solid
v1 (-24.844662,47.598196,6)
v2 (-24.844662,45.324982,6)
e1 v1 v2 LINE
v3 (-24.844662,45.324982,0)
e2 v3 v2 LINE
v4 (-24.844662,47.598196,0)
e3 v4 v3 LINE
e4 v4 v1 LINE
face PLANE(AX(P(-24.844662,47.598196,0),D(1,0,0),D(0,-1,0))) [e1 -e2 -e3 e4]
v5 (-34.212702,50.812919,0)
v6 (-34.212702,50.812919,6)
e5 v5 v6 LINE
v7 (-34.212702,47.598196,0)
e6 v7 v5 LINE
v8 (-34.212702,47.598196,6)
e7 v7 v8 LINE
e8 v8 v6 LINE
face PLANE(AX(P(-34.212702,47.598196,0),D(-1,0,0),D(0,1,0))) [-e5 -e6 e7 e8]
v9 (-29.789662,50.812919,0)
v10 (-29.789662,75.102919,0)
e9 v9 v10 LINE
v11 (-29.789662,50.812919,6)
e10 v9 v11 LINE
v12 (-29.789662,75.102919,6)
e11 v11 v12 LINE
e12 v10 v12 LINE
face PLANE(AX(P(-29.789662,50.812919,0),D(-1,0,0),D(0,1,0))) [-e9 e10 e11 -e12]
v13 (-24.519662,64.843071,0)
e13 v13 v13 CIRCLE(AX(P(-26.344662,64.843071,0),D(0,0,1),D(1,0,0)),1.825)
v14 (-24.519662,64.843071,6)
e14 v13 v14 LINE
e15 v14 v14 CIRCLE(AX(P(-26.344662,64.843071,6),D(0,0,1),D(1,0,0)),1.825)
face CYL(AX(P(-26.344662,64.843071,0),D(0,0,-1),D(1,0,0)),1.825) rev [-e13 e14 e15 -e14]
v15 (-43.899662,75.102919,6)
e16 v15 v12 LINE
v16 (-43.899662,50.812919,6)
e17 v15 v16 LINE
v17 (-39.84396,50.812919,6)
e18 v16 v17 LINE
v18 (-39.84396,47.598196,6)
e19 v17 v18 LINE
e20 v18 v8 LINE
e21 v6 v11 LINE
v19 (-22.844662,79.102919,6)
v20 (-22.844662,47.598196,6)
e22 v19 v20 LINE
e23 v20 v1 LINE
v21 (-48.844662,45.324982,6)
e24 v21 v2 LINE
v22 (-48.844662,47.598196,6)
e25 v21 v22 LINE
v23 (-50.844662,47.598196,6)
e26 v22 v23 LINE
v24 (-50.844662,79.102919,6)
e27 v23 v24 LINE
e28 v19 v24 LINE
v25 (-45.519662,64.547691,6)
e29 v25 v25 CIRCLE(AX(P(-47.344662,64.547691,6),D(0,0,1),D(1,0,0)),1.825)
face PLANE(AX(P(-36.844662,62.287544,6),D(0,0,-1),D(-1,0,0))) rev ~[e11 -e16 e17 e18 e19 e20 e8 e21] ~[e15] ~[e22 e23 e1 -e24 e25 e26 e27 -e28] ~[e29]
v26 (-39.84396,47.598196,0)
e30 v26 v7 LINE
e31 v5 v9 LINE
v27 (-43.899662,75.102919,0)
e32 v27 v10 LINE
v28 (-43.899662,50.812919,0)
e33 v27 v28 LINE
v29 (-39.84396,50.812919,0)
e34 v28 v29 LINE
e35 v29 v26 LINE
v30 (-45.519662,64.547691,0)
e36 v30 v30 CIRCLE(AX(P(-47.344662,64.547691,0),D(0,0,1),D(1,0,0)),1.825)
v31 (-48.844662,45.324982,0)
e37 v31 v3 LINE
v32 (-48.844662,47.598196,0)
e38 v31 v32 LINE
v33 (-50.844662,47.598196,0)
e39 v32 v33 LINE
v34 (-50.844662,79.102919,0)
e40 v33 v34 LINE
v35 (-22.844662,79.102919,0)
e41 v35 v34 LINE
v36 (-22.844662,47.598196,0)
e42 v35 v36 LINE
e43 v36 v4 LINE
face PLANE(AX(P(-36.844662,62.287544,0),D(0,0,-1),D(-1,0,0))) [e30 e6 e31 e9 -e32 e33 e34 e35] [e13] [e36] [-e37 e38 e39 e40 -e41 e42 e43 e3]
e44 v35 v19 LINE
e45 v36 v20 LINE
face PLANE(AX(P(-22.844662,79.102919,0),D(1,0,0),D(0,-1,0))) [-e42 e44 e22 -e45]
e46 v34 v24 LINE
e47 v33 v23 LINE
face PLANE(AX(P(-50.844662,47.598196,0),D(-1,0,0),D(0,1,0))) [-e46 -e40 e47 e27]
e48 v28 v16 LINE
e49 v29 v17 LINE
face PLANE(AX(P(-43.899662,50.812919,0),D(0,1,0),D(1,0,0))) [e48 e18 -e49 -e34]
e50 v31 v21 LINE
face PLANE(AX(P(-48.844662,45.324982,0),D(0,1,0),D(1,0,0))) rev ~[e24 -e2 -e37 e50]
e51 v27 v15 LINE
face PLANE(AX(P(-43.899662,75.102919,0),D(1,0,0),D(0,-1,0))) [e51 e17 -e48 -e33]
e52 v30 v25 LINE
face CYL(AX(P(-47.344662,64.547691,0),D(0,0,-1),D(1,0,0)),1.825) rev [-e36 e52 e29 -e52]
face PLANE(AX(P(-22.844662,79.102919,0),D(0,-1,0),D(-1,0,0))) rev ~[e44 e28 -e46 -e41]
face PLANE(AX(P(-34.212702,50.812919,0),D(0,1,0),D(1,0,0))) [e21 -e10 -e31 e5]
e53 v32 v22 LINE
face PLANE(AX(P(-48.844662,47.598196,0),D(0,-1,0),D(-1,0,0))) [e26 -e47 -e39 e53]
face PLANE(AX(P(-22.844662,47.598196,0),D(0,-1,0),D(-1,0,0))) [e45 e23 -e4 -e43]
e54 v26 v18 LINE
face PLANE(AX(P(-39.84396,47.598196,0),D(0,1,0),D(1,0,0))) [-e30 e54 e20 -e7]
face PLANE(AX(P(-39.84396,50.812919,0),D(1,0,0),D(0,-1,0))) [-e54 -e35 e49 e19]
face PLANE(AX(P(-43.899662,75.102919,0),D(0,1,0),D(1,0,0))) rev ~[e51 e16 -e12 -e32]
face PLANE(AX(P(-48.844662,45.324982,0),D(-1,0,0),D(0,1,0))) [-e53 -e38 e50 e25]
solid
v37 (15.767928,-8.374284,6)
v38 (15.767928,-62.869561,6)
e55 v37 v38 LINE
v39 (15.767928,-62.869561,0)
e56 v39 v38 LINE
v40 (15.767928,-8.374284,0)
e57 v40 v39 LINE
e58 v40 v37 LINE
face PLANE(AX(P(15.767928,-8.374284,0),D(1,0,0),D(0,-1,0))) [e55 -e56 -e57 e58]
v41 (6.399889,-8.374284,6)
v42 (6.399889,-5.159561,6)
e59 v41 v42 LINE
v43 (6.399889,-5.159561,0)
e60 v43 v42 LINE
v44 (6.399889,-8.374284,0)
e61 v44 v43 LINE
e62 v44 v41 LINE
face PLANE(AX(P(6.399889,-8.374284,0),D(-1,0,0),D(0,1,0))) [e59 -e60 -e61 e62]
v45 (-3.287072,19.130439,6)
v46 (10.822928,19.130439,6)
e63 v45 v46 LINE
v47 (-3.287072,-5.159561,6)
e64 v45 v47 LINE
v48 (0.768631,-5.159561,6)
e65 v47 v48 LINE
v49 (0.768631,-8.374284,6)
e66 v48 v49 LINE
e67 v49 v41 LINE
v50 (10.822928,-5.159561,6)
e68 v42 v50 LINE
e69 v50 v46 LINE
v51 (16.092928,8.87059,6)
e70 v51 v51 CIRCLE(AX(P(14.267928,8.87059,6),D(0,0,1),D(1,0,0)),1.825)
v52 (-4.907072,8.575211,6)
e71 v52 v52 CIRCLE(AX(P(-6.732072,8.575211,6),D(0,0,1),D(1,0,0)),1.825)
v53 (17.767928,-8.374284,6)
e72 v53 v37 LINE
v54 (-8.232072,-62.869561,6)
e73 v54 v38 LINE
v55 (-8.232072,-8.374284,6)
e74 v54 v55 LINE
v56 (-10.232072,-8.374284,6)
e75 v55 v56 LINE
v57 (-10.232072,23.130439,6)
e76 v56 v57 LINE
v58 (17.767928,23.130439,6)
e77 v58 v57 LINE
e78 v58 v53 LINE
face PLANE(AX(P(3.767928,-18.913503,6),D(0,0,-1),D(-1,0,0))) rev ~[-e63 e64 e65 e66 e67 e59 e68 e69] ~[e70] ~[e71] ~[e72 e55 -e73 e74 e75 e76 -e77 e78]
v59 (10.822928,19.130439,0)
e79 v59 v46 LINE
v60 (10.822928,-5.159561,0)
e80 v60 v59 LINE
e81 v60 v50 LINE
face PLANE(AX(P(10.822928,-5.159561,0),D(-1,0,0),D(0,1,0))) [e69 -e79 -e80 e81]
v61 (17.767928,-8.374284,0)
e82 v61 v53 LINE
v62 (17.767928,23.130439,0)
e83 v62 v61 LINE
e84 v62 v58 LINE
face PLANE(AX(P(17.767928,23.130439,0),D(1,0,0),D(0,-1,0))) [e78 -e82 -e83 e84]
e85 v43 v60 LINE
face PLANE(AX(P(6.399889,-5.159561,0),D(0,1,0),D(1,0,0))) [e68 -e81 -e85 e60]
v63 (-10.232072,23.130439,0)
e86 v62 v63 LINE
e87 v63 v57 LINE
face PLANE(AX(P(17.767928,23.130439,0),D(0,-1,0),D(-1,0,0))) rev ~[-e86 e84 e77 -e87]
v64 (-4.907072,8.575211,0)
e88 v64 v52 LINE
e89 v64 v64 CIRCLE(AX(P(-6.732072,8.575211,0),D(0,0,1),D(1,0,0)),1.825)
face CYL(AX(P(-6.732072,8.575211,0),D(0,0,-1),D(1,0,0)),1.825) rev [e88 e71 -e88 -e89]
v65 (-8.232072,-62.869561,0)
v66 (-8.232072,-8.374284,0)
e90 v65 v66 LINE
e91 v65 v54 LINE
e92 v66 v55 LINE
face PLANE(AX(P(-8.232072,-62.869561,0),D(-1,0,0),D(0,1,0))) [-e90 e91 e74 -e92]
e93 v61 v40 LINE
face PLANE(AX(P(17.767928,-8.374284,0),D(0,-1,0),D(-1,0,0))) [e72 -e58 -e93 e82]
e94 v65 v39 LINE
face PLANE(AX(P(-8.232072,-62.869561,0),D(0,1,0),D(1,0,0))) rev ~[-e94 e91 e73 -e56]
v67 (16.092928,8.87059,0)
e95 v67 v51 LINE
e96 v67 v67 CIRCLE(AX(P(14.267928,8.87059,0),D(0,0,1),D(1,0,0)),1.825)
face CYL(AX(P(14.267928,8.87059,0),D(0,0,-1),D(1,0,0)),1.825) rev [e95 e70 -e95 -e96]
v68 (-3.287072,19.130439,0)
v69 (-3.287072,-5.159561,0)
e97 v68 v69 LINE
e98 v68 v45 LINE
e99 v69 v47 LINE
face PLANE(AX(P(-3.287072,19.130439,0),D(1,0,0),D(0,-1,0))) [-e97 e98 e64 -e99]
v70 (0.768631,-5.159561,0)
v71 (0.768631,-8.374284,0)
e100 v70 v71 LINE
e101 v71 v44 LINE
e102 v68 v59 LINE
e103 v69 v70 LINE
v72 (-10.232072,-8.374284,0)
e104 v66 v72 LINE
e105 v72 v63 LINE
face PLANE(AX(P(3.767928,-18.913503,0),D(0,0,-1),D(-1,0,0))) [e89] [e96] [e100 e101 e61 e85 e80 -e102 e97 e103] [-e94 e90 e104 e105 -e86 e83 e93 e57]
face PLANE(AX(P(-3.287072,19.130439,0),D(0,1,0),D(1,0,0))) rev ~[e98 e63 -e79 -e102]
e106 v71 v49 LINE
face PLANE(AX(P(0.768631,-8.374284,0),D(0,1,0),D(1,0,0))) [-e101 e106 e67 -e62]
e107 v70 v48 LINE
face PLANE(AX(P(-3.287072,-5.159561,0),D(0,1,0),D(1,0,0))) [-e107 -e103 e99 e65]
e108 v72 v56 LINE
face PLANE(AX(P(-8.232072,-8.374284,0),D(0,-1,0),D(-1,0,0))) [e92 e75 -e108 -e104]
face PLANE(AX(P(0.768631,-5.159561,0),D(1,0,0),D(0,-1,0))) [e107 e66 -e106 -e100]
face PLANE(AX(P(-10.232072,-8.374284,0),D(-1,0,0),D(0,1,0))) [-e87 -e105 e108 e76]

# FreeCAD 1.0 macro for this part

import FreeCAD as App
import Part
import Sketcher

V = App.Vector

doc = App.newDocument("Part")
body = doc.addObject("PartDesign::Body", "Body")

sketch1 = body.newObject("Sketcher::SketchObject", "Sketch")
sketch1.AttachmentSupport = (doc.getObject("XY_Plane"), [""])
sketch1.MapMode = "FlatFace"
sketch1.addGeometry([
    Part.LineSegment(V(-8.232072, -62.869561, 0), V(15.767928, -62.869561, 0)),
    Part.LineSegment(V(15.767928, -62.869561, 0), V(15.767928, -8.374284, 0)),
    Part.LineSegment(V(15.767928, -8.374284, 0), V(17.767928, -8.374284, 0)),
    Part.LineSegment(V(17.767928, -8.374284, 0), V(17.767928, 23.130439, 0)),
    Part.LineSegment(V(17.767928, 23.130439, 0), V(-10.232072, 23.130439, 0)),
    Part.LineSegment(V(-10.232072, 23.130439, 0), V(-10.232072, -8.374284, 0)),
    Part.LineSegment(V(-10.232072, -8.374284, 0), V(-8.232072, -8.374284, 0)),
    Part.LineSegment(V(-8.232072, -8.374284, 0), V(-8.232072, -62.869561, 0)),
    Part.LineSegment(V(10.822928, 19.130439, 0), V(10.822928, -5.159561, 0)),
    Part.LineSegment(V(10.822928, -5.159561, 0), V(6.399889, -5.159561, 0)),
    Part.LineSegment(V(6.399889, -5.159561, 0), V(6.399889, -8.374284, 0)),
    Part.LineSegment(V(6.399889, -8.374284, 0), V(0.768631, -8.374284, 0)),
    Part.LineSegment(V(0.768631, -8.374284, 0), V(0.768631, -5.159561, 0)),
    Part.LineSegment(V(0.768631, -5.159561, 0), V(-3.287072, -5.159561, 0)),
    Part.LineSegment(V(-3.287072, -5.159561, 0), V(-3.287072, 19.130439, 0)),
    Part.LineSegment(V(-3.287072, 19.130439, 0), V(10.822928, 19.130439, 0)),
    Part.Circle(V(14.267928, 8.87059, 0), V(0, 0, 1), 1.825),
    Part.Circle(V(-6.732072, 8.575211, 0), V(0, 0, 1), 1.825),
], False)
sketch1.addConstraint([
    Sketcher.Constraint("Coincident", 0, 2, 1, 1),
    Sketcher.Constraint("Coincident", 1, 2, 2, 1),
    Sketcher.Constraint("Coincident", 2, 2, 3, 1),
    Sketcher.Constraint("Coincident", 3, 2, 4, 1),
    Sketcher.Constraint("Coincident", 4, 2, 5, 1),
    Sketcher.Constraint("Coincident", 5, 2, 6, 1),
    Sketcher.Constraint("Coincident", 6, 2, 7, 1),
    Sketcher.Constraint("Coincident", 7, 2, 0, 1),
    Sketcher.Constraint("Coincident", 8, 2, 9, 1),
    Sketcher.Constraint("Coincident", 9, 2, 10, 1),
    Sketcher.Constraint("Coincident", 10, 2, 11, 1),
    Sketcher.Constraint("Coincident", 11, 2, 12, 1),
    Sketcher.Constraint("Coincident", 12, 2, 13, 1),
    Sketcher.Constraint("Coincident", 13, 2, 14, 1),
    Sketcher.Constraint("Coincident", 14, 2, 15, 1),
    Sketcher.Constraint("Coincident", 15, 2, 8, 1),
    Sketcher.Constraint("Horizontal", 0),
    Sketcher.Constraint("Vertical", 1),
    Sketcher.Constraint("Horizontal", 2),
    Sketcher.Constraint("Vertical", 3),
    Sketcher.Constraint("Horizontal", 4),
    Sketcher.Constraint("Vertical", 5),
    Sketcher.Constraint("Horizontal", 6),
    Sketcher.Constraint("Vertical", 7),
    Sketcher.Constraint("Vertical", 8),
    Sketcher.Constraint("Horizontal", 9),
    Sketcher.Constraint("Vertical", 10),
    Sketcher.Constraint("Horizontal", 11),
    Sketcher.Constraint("Vertical", 12),
    Sketcher.Constraint("Horizontal", 13),
    Sketcher.Constraint("Vertical", 14),
    Sketcher.Constraint("Horizontal", 15),
    Sketcher.Constraint("Equal", 16, 17),
    Sketcher.Constraint("Horizontal", 2, 2, 5, 2),
    Sketcher.Constraint("Horizontal", 6, 2, 10, 2),
    Sketcher.Constraint("Horizontal", 9, 2, 12, 2),
    Sketcher.Constraint("Equal", 2, 6),
    Sketcher.Constraint("Diameter", 16, 3.65),
    Sketcher.Constraint("DistanceX", 0, 1, 0, 2, 24.0),
    Sketcher.Constraint("DistanceX", 2, 1, 2, 2, 2.0),
    Sketcher.Constraint("DistanceX", 17, 3, 16, 3, 21.0),
    Sketcher.Constraint("DistanceY", 0, 2, 3, 2, 86.0),
    Sketcher.Constraint("DistanceY", 14, 2, 4, 2, 4.0),
    Sketcher.Constraint("DistanceX", 15, 1, 15, 2, 14.11),
    Sketcher.Constraint("DistanceY", 8, 2, 8, 1, 24.29),
    Sketcher.Constraint("DistanceX", 16, 3, 0, 2, 1.5),
    Sketcher.Constraint("DistanceX", 8, 2, 1, 2, 4.945),
    Sketcher.Constraint("DistanceX", 9, 2, 9, 1, 4.42304),
    Sketcher.Constraint("DistanceX", 11, 2, 11, 1, 5.631258),
    Sketcher.Constraint("DistanceY", 1, 1, 1, 2, 54.495277),
    Sketcher.Constraint("DistanceX", -1, 1, 16, 3, 14.267928),
    Sketcher.Constraint("DistanceY", -1, 1, 16, 3, 8.87059),
    Sketcher.Constraint("DistanceY", -1, 1, 17, 3, 8.575211),
    Sketcher.Constraint("DistanceY", 0, 2, -1, 1, 62.869561),
])
pad1 = body.newObject("PartDesign::Pad", "Pad")
pad1.Profile = sketch1
pad1.Length = 6
body2 = doc.addObject("PartDesign::Body", "Body001")

sketch2 = body2.newObject("Sketcher::SketchObject", "Sketch001")
sketch2.AttachmentSupport = (doc.getObject("XY_Plane001"), [""])
sketch2.MapMode = "FlatFace"
sketch2.addGeometry([
    Part.LineSegment(V(-48.844662, 45.324982, 0), V(-24.844662, 45.324982, 0)),
    Part.LineSegment(V(-24.844662, 45.324982, 0), V(-24.844662, 47.598196, 0)),
    Part.LineSegment(V(-24.844662, 47.598196, 0), V(-22.844662, 47.598196, 0)),
    Part.LineSegment(V(-22.844662, 47.598196, 0), V(-22.844662, 79.102919, 0)),
    Part.LineSegment(V(-22.844662, 79.102919, 0), V(-50.844662, 79.102919, 0)),
    Part.LineSegment(V(-50.844662, 79.102919, 0), V(-50.844662, 47.598196, 0)),
    Part.LineSegment(V(-50.844662, 47.598196, 0), V(-48.844662, 47.598196, 0)),
    Part.LineSegment(V(-48.844662, 47.598196, 0), V(-48.844662, 45.324982, 0)),
    Part.LineSegment(V(-29.789662, 75.102919, 0), V(-29.789662, 50.812919, 0)),
    Part.LineSegment(V(-29.789662, 50.812919, 0), V(-34.212702, 50.812919, 0)),
    Part.LineSegment(V(-34.212702, 50.812919, 0), V(-34.212702, 47.598196, 0)),
    Part.LineSegment(V(-34.212702, 47.598196, 0), V(-39.84396, 47.598196, 0)),
    Part.LineSegment(V(-39.84396, 47.598196, 0), V(-39.84396, 50.812919, 0)),
    Part.LineSegment(V(-39.84396, 50.812919, 0), V(-43.899662, 50.812919, 0)),
    Part.LineSegment(V(-43.899662, 50.812919, 0), V(-43.899662, 75.102919, 0)),
    Part.LineSegment(V(-43.899662, 75.102919, 0), V(-29.789662, 75.102919, 0)),
    Part.Circle(V(-26.344662, 64.843071, 0), V(0, 0, 1), 1.825),
    Part.Circle(V(-47.344662, 64.547691, 0), V(0, 0, 1), 1.825),
], False)
sketch2.addConstraint([
    Sketcher.Constraint("Coincident", 0, 2, 1, 1),
    Sketcher.Constraint("Coincident", 1, 2, 2, 1),
    Sketcher.Constraint("Coincident", 2, 2, 3, 1),
    Sketcher.Constraint("Coincident", 3, 2, 4, 1),
    Sketcher.Constraint("Coincident", 4, 2, 5, 1),
    Sketcher.Constraint("Coincident", 5, 2, 6, 1),
    Sketcher.Constraint("Coincident", 6, 2, 7, 1),
    Sketcher.Constraint("Coincident", 7, 2, 0, 1),
    Sketcher.Constraint("Coincident", 8, 2, 9, 1),
    Sketcher.Constraint("Coincident", 9, 2, 10, 1),
    Sketcher.Constraint("Coincident", 10, 2, 11, 1),
    Sketcher.Constraint("Coincident", 11, 2, 12, 1),
    Sketcher.Constraint("Coincident", 12, 2, 13, 1),
    Sketcher.Constraint("Coincident", 13, 2, 14, 1),
    Sketcher.Constraint("Coincident", 14, 2, 15, 1),
    Sketcher.Constraint("Coincident", 15, 2, 8, 1),
    Sketcher.Constraint("Horizontal", 0),
    Sketcher.Constraint("Vertical", 1),
    Sketcher.Constraint("Horizontal", 2),
    Sketcher.Constraint("Vertical", 3),
    Sketcher.Constraint("Horizontal", 4),
    Sketcher.Constraint("Vertical", 5),
    Sketcher.Constraint("Horizontal", 6),
    Sketcher.Constraint("Vertical", 7),
    Sketcher.Constraint("Vertical", 8),
    Sketcher.Constraint("Horizontal", 9),
    Sketcher.Constraint("Vertical", 10),
    Sketcher.Constraint("Horizontal", 11),
    Sketcher.Constraint("Vertical", 12),
    Sketcher.Constraint("Horizontal", 13),
    Sketcher.Constraint("Vertical", 14),
    Sketcher.Constraint("Horizontal", 15),
    Sketcher.Constraint("Equal", 16, 17),
    Sketcher.Constraint("Horizontal", 2, 2, 5, 2),
    Sketcher.Constraint("Horizontal", 6, 2, 10, 2),
    Sketcher.Constraint("Horizontal", 9, 2, 12, 2),
    Sketcher.Constraint("Equal", 2, 6),
    Sketcher.Constraint("Diameter", 16, 3.65),
    Sketcher.Constraint("DistanceX", 0, 1, 0, 2, 24.0),
    Sketcher.Constraint("DistanceX", 2, 1, 2, 2, 2.0),
    Sketcher.Constraint("DistanceX", 17, 3, 16, 3, 21.0),
    Sketcher.Constraint("DistanceY", 14, 2, 4, 2, 4.0),
    Sketcher.Constraint("DistanceX", 15, 1, 15, 2, 14.11),
    Sketcher.Constraint("DistanceY", 8, 2, 8, 1, 24.29),
    Sketcher.Constraint("DistanceX", 16, 3, 0, 2, 1.5),
    Sketcher.Constraint("DistanceX", 8, 2, 1, 2, 4.945),
    Sketcher.Constraint("DistanceX", 9, 2, 9, 1, 4.42304),
    Sketcher.Constraint("DistanceX", 11, 2, 11, 1, 5.631258),
    Sketcher.Constraint("DistanceX", 9, 2, -1, 1, 34.212702),
    Sketcher.Constraint("DistanceY", 1, 1, 1, 2, 2.273214),
    Sketcher.Constraint("DistanceY", 3, 1, 3, 2, 31.504723),
    Sketcher.Constraint("DistanceY", -1, 1, 16, 3, 64.843071),
    Sketcher.Constraint("DistanceY", -1, 1, 17, 3, 64.547691),
    Sketcher.Constraint("DistanceY", -1, 1, 3, 2, 79.102919),
])
pad2 = body2.newObject("PartDesign::Pad", "Pad001")
pad2.Profile = sketch2
pad2.Length = 6

doc.recompute()
